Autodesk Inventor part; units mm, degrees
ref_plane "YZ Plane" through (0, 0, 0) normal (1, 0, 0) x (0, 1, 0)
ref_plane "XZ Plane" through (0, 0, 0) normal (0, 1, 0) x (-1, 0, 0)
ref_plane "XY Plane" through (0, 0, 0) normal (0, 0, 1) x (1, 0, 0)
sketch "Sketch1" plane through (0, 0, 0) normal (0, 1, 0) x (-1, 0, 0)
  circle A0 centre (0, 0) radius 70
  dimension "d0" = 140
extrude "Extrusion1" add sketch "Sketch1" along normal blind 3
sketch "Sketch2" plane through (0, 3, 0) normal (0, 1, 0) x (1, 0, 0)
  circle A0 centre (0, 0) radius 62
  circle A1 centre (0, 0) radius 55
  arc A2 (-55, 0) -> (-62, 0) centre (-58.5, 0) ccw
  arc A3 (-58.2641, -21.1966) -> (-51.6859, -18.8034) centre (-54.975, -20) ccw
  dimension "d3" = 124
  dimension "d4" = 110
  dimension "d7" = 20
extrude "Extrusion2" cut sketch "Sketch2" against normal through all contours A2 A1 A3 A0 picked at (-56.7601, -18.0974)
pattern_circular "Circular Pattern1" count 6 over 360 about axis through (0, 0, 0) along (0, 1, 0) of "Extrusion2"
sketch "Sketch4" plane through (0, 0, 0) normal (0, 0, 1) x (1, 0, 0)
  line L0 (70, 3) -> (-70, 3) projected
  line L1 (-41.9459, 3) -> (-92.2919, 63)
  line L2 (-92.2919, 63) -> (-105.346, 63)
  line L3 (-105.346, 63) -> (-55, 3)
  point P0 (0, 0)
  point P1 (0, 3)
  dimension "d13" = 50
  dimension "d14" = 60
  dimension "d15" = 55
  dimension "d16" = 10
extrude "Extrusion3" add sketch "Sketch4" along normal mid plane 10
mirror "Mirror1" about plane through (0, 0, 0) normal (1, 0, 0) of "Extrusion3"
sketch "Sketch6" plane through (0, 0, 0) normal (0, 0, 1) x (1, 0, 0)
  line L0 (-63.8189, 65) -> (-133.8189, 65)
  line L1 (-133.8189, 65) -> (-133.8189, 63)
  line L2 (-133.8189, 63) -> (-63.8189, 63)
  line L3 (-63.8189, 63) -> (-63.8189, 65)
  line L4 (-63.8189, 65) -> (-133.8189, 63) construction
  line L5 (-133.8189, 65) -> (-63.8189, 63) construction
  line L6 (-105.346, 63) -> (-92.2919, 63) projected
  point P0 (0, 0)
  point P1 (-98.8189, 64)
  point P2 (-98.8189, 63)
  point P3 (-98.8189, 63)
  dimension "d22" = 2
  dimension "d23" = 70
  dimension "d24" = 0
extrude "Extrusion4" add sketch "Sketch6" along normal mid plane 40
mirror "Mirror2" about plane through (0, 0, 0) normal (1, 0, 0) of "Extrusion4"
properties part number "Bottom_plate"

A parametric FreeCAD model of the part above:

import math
import FreeCAD as App
import Part
import Sketcher

V = App.Vector
Q = App.Units.Quantity


def add_polygon(sketch, points):
    """Adds a closed chain of lines whose ends are joined by coincident constraints."""
    first, n = sketch.GeometryCount, len(points)
    for a, b in zip(points, points[1:] + points[:1]):
        sketch.addGeometry(Part.LineSegment(App.Vector(*a, 0), App.Vector(*b, 0)), False)
    for i in range(n):
        sketch.addConstraint(Sketcher.Constraint("Coincident", first + i, 2, first + (i + 1) % n, 1))

doc = App.newDocument("Part")
body = doc.addObject("PartDesign::Body", "Body")

# Sketch on XZ plane
sketch1 = doc.addObject("Sketcher::SketchObject", "Sketch")
body.addObject(sketch1)
sketch1.AttachmentSupport = (doc.XZ_Plane, [""])
sketch1.MapMode = "FlatFace"
sketch1.addGeometry(Part.Circle(V(0, 0, 0), V(0, 0, 1), 70), False)
sketch1.addConstraint([
    Sketcher.Constraint("Coincident", 0, 3, -1, 1),
    Sketcher.Constraint("Diameter", 0, 140.0),
])
pad1 = doc.addObject("PartDesign::Pad", "Pad")
body.addObject(pad1)
pad1.Profile = sketch1
pad1.Length = 3
pad1.Reversed = True

# Sketch on XZ plane
sketch2 = doc.addObject("Sketcher::SketchObject", "Sketch001")
body.addObject(sketch2)
sketch2.AttachmentSupport = (doc.XZ_Plane, [""])
sketch2.MapMode = "FlatFace"
sketch2.AttachmentOffset = App.Placement(V(0, 0, -3), App.Rotation())
sketch2.addGeometry([
    Part.ArcOfCircle(Part.Circle(V(-58.5, 0, 0), V(0, 0, 1), 3.5), math.radians(180), math.radians(360)),
    Part.ArcOfCircle(Part.Circle(V(0, 0, 0), V(0, 0, 1), 62), math.radians(160.01), math.radians(180)),
    Part.ArcOfCircle(Part.Circle(V(-55, 20, 0), V(0, 0, 1), 3.5), math.radians(-20), math.radians(160)),
    Part.ArcOfCircle(Part.Circle(V(0, 0, 0), V(0, 0, 1), 55), math.radians(160.01), math.radians(180)),
], False)
sketch2.addConstraint([
    Sketcher.Constraint("Tangent", 0, 1, 1, 2),
    Sketcher.Constraint("Tangent", 1, 1, 2, 2),
    Sketcher.Constraint("Tangent", 2, 1, 3, 1),
    Sketcher.Constraint("Tangent", 3, 2, 0, 2),
    Sketcher.Constraint("Coincident", 1, 3, -1, 1),
    Sketcher.Constraint("Coincident", 3, 3, -1, 1),
    Sketcher.Constraint("PointOnObject", 0, 3, -1),
    Sketcher.Constraint("Radius", 1, 62.0),
    Sketcher.Constraint("Radius", 3, 55.0),
    Sketcher.Constraint("DistanceY", -1, 1, 2, 3, 20.0),
])
pocket1 = doc.addObject("PartDesign::Pocket", "Pocket")
body.addObject(pocket1)
pocket1.Profile = sketch2
pocket1.Type = "ThroughAll"
pocket1.Reversed = True
doc.recompute()

polarpattern = doc.addObject("PartDesign::PolarPattern", "PolarPattern")
body.addObject(polarpattern)
polarpattern.Originals = [pocket1]
polarpattern.Axis = (doc.Y_Axis, [""])
polarpattern.Angle = 360
polarpattern.Occurrences = 6
body.Tip = polarpattern

# Sketch on XY plane
sketch3 = doc.addObject("Sketcher::SketchObject", "Sketch002")
body.addObject(sketch3)
sketch3.AttachmentSupport = (doc.XY_Plane, [""])
sketch3.MapMode = "FlatFace"
add_polygon(sketch3, [(-55, 3), (-42, 3), (-92, 63), (-105, 63)])  # lines 0-3
sketch3.addConstraint([
    Sketcher.Constraint("Horizontal", 0),
    Sketcher.Constraint("Horizontal", 2),
    Sketcher.Constraint("Parallel", 1, 3),
    Sketcher.Constraint("Angle", 3, Q("-50 deg")),
    Sketcher.Constraint("DistanceX", 3, 2, -1, 1, 55.0),
    Sketcher.Constraint("DistanceY", 0, 2, 1, 2, 60.0),
    Sketcher.Constraint("DistanceY", -1, 1, 0, 2, 3.0),
    Sketcher.Constraint("DistanceX", 2, 2, 0, 2, 63.4),
])
pad2 = doc.addObject("PartDesign::Pad", "Pad001")
body.addObject(pad2)
pad2.Profile = sketch3
pad2.Length = 10
pad2.Midplane = True
doc.recompute()

mirrored = doc.addObject("PartDesign::Mirrored", "Mirrored")
body.addObject(mirrored)
mirrored.Originals = [pad2]
mirrored.MirrorPlane = (doc.YZ_Plane, [""])
body.Tip = mirrored

# Sketch on XY plane
sketch4 = doc.addObject("Sketcher::SketchObject", "Sketch003")
body.addObject(sketch4)
sketch4.AttachmentSupport = (doc.XY_Plane, [""])
sketch4.MapMode = "FlatFace"
add_polygon(sketch4, [(-63.8, 63), (-63.8, 65), (-133.8, 65), (-133.8, 63)])  # lines 0-3
sketch4.addConstraint([
    Sketcher.Constraint("Vertical", 0),
    Sketcher.Constraint("Horizontal", 1),
    Sketcher.Constraint("Vertical", 2),
    Sketcher.Constraint("Horizontal", 3),
    Sketcher.Constraint("DistanceX", 1, 2, 1, 1, 70.0),
    Sketcher.Constraint("DistanceY", 0, 1, 0, 2, 2.0),
    Sketcher.Constraint("DistanceY", -1, 1, 0, 2, 65.0),
    Sketcher.Constraint("DistanceX", 0, 2, -1, 1, 63.819),
])
pad3 = doc.addObject("PartDesign::Pad", "Pad002")
body.addObject(pad3)
pad3.Profile = sketch4
pad3.Length = 40
pad3.Midplane = True
doc.recompute()

mirrored2 = doc.addObject("PartDesign::Mirrored", "Mirrored001")
body.addObject(mirrored2)
mirrored2.Originals = [pad3]
mirrored2.MirrorPlane = (doc.YZ_Plane, [""])
body.Tip = mirrored2

doc.recompute()
